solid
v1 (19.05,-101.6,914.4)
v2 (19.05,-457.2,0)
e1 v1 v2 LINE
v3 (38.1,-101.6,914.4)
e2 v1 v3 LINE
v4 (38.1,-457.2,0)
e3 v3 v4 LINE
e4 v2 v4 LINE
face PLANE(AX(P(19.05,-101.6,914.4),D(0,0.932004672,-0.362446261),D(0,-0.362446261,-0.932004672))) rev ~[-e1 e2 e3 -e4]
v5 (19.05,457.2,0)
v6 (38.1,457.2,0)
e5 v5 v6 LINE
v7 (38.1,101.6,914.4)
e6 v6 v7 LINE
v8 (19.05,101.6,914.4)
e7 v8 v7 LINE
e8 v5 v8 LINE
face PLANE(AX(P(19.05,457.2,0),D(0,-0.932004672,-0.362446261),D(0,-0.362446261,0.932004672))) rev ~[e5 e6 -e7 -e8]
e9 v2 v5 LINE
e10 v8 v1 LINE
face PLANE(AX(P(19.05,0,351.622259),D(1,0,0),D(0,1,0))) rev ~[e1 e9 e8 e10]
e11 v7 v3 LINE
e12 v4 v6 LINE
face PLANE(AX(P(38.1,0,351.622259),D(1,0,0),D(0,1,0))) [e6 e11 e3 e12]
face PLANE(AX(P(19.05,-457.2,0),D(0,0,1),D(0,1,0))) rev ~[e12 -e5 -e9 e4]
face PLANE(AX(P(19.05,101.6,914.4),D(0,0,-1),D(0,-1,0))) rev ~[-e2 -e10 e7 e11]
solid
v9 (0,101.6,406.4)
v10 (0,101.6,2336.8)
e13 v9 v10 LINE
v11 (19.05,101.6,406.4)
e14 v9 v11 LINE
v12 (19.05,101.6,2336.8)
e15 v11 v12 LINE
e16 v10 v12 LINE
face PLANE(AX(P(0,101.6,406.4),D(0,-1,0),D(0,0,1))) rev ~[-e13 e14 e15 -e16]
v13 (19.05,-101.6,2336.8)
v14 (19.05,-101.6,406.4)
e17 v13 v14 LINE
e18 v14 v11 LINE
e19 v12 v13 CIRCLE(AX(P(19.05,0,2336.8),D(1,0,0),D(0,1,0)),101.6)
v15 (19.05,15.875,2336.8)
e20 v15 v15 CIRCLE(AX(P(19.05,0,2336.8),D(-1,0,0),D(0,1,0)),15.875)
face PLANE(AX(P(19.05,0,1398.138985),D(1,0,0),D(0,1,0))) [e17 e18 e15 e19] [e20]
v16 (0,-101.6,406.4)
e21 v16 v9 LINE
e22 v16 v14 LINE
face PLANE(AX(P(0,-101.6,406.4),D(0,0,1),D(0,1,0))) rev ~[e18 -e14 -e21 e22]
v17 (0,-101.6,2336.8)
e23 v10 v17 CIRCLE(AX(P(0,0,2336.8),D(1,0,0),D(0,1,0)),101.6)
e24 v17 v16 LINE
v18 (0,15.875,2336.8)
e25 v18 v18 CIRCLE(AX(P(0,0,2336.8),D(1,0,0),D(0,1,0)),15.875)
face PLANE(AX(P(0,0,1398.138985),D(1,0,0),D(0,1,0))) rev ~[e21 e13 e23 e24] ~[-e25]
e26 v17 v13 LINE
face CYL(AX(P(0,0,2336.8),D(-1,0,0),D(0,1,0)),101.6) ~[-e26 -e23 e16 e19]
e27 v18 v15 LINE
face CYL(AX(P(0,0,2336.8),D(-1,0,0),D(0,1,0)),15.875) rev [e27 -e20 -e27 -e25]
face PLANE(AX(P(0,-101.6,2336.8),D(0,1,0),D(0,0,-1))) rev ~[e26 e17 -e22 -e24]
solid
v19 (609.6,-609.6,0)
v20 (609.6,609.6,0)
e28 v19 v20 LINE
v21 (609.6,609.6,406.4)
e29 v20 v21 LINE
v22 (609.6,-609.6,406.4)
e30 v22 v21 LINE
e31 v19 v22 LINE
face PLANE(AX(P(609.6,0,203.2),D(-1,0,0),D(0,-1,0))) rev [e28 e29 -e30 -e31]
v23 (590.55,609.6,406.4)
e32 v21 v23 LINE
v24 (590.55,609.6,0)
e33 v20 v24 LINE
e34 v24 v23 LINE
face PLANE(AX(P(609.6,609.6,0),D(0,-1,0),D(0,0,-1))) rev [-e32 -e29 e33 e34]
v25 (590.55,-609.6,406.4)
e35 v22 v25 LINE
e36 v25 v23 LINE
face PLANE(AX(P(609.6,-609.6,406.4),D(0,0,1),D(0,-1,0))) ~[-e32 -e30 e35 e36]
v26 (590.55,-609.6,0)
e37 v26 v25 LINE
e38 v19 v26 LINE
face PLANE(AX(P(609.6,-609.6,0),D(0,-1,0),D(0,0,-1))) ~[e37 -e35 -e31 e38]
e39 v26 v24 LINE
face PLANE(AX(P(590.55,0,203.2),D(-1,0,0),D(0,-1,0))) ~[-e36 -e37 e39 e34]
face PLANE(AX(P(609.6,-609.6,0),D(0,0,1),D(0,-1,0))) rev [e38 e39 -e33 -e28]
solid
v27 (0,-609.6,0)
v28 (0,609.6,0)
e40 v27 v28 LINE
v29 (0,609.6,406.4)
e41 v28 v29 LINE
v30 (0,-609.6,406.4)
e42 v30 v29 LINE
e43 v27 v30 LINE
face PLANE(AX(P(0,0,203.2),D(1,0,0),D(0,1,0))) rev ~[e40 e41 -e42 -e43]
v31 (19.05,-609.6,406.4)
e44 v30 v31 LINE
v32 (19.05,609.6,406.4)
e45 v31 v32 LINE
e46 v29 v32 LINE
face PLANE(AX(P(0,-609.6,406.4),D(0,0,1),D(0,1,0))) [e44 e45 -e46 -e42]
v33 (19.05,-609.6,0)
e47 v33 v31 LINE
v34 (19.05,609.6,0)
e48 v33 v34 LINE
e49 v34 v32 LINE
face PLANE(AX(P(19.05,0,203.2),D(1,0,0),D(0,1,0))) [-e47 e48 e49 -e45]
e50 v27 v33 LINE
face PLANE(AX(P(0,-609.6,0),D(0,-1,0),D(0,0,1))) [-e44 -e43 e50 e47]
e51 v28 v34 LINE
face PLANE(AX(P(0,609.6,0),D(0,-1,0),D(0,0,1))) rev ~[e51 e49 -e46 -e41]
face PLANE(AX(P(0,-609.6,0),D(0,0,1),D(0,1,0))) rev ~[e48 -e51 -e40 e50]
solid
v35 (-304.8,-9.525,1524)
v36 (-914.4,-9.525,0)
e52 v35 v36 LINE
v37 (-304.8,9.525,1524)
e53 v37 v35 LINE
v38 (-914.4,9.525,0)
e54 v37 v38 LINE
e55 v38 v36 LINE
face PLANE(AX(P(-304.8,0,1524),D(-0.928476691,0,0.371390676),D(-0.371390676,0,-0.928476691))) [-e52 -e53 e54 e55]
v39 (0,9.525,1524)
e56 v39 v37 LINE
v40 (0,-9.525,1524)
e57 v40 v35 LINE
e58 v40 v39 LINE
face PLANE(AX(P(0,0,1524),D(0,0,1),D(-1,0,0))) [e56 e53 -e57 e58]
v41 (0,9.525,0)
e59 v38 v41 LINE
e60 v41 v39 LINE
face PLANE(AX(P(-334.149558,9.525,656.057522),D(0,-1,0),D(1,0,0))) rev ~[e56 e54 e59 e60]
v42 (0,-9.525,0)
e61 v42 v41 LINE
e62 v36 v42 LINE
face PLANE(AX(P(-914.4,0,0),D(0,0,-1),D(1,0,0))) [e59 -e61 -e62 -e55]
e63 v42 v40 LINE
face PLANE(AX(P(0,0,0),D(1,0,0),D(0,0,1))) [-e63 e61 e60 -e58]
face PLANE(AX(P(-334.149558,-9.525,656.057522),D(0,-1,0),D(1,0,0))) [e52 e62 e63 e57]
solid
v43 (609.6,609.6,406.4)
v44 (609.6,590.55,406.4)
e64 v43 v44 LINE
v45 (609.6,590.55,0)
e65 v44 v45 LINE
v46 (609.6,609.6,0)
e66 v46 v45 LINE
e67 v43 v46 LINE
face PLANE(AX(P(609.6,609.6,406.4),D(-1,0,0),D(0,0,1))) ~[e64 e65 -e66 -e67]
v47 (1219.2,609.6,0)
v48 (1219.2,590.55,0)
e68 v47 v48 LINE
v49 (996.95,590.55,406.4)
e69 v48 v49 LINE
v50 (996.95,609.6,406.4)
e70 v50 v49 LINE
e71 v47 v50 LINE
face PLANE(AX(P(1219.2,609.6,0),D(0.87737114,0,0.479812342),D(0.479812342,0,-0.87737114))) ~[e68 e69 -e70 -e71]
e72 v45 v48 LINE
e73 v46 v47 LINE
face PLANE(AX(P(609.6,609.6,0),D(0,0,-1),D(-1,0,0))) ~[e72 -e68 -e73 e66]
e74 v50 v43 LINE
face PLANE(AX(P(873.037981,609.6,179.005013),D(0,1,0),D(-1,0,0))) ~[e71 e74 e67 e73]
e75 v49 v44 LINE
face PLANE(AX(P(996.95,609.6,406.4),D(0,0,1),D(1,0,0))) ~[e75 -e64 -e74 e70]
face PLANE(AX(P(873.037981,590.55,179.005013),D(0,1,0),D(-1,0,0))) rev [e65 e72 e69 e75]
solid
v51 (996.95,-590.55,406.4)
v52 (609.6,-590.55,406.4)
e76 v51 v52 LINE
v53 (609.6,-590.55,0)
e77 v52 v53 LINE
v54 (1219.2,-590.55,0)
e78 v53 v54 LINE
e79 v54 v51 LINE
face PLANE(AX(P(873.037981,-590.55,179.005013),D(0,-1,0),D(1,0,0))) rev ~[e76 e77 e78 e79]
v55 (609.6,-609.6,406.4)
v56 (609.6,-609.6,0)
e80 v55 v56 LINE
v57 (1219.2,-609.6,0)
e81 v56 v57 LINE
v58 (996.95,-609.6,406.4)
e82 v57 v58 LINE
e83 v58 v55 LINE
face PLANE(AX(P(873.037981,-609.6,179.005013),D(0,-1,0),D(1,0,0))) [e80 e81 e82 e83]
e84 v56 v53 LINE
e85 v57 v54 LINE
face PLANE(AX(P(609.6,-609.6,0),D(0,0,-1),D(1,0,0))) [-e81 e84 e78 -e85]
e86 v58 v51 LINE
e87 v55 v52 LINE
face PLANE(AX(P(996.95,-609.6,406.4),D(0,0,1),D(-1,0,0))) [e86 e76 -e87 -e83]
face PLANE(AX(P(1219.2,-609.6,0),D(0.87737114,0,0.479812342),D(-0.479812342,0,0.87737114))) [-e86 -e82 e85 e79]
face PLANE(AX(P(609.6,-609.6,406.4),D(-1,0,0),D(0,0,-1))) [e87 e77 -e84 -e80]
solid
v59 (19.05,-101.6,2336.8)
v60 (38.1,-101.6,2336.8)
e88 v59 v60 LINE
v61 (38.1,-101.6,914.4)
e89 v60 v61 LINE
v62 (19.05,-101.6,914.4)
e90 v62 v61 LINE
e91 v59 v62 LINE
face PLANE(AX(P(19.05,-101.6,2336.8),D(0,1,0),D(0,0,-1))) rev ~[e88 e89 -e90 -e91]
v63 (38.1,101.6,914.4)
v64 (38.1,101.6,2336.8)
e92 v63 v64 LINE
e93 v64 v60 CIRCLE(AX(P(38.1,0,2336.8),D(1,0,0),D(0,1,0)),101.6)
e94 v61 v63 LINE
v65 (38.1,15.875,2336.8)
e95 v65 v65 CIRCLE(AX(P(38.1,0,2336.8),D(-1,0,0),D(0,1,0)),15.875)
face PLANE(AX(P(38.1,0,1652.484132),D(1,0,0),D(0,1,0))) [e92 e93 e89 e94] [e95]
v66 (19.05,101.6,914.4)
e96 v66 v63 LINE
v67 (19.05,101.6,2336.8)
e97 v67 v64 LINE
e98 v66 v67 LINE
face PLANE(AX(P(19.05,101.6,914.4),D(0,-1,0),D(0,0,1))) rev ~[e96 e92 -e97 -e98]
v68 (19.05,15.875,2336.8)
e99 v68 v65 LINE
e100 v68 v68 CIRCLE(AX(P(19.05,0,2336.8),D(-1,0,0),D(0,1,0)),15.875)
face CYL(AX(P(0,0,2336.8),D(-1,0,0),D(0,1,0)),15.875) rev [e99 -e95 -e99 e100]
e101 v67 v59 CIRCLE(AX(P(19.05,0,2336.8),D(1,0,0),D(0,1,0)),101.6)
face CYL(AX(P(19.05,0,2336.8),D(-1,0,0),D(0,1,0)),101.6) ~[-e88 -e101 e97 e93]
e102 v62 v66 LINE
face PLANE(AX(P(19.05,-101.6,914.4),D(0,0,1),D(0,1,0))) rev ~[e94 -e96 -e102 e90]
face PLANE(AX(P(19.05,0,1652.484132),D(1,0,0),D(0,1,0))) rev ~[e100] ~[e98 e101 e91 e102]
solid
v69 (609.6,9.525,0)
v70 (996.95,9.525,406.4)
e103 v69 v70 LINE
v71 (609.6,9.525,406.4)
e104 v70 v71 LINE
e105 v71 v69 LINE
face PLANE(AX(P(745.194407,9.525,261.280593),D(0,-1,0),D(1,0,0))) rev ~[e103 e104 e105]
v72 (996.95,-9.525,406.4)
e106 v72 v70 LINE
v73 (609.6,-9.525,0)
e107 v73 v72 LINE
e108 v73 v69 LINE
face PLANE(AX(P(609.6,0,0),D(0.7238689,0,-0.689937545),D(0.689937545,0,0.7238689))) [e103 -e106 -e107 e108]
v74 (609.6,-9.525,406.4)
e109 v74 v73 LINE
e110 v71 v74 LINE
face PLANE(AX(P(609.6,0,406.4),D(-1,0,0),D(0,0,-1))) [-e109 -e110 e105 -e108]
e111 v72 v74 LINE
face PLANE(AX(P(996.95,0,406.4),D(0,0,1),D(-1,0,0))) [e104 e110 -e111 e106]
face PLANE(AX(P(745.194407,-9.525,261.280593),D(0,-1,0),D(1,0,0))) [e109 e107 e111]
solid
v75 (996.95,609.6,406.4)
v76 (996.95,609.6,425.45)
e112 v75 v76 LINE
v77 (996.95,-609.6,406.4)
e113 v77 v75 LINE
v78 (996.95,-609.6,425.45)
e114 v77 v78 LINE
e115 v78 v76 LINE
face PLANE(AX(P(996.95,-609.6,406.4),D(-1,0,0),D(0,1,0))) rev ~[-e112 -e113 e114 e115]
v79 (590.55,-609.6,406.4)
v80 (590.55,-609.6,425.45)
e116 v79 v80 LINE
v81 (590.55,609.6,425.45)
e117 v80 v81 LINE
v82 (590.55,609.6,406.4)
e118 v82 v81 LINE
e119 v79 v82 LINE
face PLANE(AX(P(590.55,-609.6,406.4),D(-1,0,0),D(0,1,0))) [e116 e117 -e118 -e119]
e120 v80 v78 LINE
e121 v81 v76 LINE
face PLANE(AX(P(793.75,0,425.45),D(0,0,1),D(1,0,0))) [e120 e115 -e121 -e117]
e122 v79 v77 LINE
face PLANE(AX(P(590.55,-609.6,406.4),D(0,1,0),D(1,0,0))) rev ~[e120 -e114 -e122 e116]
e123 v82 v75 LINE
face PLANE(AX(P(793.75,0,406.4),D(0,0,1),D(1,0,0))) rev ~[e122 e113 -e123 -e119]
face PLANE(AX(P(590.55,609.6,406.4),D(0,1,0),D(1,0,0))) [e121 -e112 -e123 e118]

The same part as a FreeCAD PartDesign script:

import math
import FreeCAD as App
import Part
import Sketcher
Q = App.Units.Quantity

doc = App.newDocument("Part")
body = doc.addObject("PartDesign::Body", "Body")

# Sketch on YZ plane
sketch1 = body.newObject("Sketcher::SketchObject", "Sketch")
sketch1.AttachmentSupport = (doc.getObject("YZ_Plane"), [""])
sketch1.MapMode = "FlatFace"
sketch1.addGeometry([
    Part.LineSegment(App.Vector(101.6, 406.4, 0), App.Vector(101.6, 2336.8, 0)),
    Part.ArcOfCircle(Part.Circle(App.Vector(0, 2336.8, 0), App.Vector(0, 0, 1), 101.6), math.radians(0), math.radians(180)),
    Part.LineSegment(App.Vector(-101.6, 2336.8, 0), App.Vector(-101.6, 406.4, 0)),
    Part.LineSegment(App.Vector(-101.6, 406.4, 0), App.Vector(101.6, 406.4, 0)),
], False)
sketch1.addConstraint([
    Sketcher.Constraint("Tangent", 0, 2, 1, 1),
    Sketcher.Constraint("Tangent", 1, 2, 2, 1),
    Sketcher.Constraint("Coincident", 2, 2, 3, 1),
    Sketcher.Constraint("Coincident", 3, 2, 0, 1),
    Sketcher.Constraint("Vertical", 0),
    Sketcher.Constraint("Vertical", 2),
    Sketcher.Constraint("Horizontal", 3),
    Sketcher.Constraint("PointOnObject", 1, 3, -2),
    Sketcher.Constraint("Radius", 1, Q("4 in")),
    Sketcher.Constraint("DistanceY", 0, 1, 0, 2, Q("76 in")),
    Sketcher.Constraint("DistanceY", -1, 1, 1, 3, Q("92 in")),
])
pad1 = body.newObject("PartDesign::Pad", "Pad")
pad1.Profile = sketch1
pad1.Length = Q("0.75 in")
body2 = doc.addObject("PartDesign::Body", "Body001")

# Sketch on YZ plane
sketch2 = body2.newObject("Sketcher::SketchObject", "Sketch001")
sketch2.AttachmentSupport = (doc.getObject("YZ_Plane001"), [""])
sketch2.MapMode = "FlatFace"
sketch2.addGeometry([
    Part.LineSegment(App.Vector(-609.6, 406.4, 0), App.Vector(-609.6, 0, 0)),
    Part.LineSegment(App.Vector(-609.6, 0, 0), App.Vector(609.6, 0, 0)),
    Part.LineSegment(App.Vector(609.6, 0, 0), App.Vector(609.6, 406.4, 0)),
    Part.LineSegment(App.Vector(609.6, 406.4, 0), App.Vector(-609.6, 406.4, 0)),
], False)
sketch2.addConstraint([
    Sketcher.Constraint("Coincident", 0, 2, 1, 1),
    Sketcher.Constraint("Coincident", 1, 2, 2, 1),
    Sketcher.Constraint("Coincident", 2, 2, 3, 1),
    Sketcher.Constraint("Coincident", 3, 2, 0, 1),
    Sketcher.Constraint("Vertical", 0),
    Sketcher.Constraint("Horizontal", 1),
    Sketcher.Constraint("Vertical", 2),
    Sketcher.Constraint("Horizontal", 3),
    Sketcher.Constraint("Symmetric", 0, 2, 1, 2, -1, 1),
    Sketcher.Constraint("DistanceX", 1, 1, 1, 2, Q("48 in")),
    Sketcher.Constraint("DistanceY", 0, 2, 0, 1, Q("16 in")),
])
pad2 = body2.newObject("PartDesign::Pad", "Pad001")
pad2.Profile = sketch2
pad2.Length = Q("0.75 in")
body3 = doc.addObject("PartDesign::Body", "Body002")
doc.recompute()

mirroring = doc.addObject("Part::Mirroring", "Mirroring")
mirroring.Source = body2
mirroring.Base = App.Vector(304.8, 0, 0)
mirroring.Normal = App.Vector(1, 0, 0)
body3.BaseFeature = mirroring
doc.recompute()
body4 = doc.addObject("PartDesign::Body", "Body003")

# Sketch on YZ plane
sketch3 = body4.newObject("Sketcher::SketchObject", "Sketch002")
sketch3.AttachmentSupport = (doc.getObject("YZ_Plane003"), [""])
sketch3.MapMode = "FlatFace"
sketch3.AttachmentOffset = App.Placement(App.Vector(0, 0, 0.75 * 25.4), App.Rotation())
sketch3.addGeometry([
    Part.LineSegment(App.Vector(101.6, 914.4, 0), App.Vector(-101.6, 914.4, 0)),
    Part.LineSegment(App.Vector(-101.6, 914.4, 0), App.Vector(-457.2, 0, 0)),
    Part.LineSegment(App.Vector(-457.2, 0, 0), App.Vector(457.2, 0, 0)),
    Part.LineSegment(App.Vector(457.2, 0, 0), App.Vector(101.6, 914.4, 0)),
], False)
sketch3.addConstraint([
    Sketcher.Constraint("Coincident", 0, 2, 1, 1),
    Sketcher.Constraint("Coincident", 1, 2, 2, 1),
    Sketcher.Constraint("Coincident", 2, 2, 3, 1),
    Sketcher.Constraint("Coincident", 3, 2, 0, 1),
    Sketcher.Constraint("Horizontal", 0),
    Sketcher.Constraint("Horizontal", 2),
    Sketcher.Constraint("Symmetric", 1, 2, 2, 2, -1, 1),
    Sketcher.Constraint("Equal", 1, 3),
    Sketcher.Constraint("DistanceX", 0, 2, 0, 1, Q("8 in")),
    Sketcher.Constraint("DistanceX", 2, 1, 2, 2, Q("36 in")),
    Sketcher.Constraint("DistanceY", -1, 1, 0, 2, Q("36 in")),
])
pad3 = body4.newObject("PartDesign::Pad", "Pad002")
pad3.Profile = sketch3
pad3.Length = Q("0.75 in")
body5 = doc.addObject("PartDesign::Body", "Body004")

# Sketch on XY plane
sketch4 = body5.newObject("Sketcher::SketchObject", "Sketch003")
sketch4.AttachmentSupport = (doc.getObject("XY_Plane004"), [""])
sketch4.MapMode = "FlatFace"
sketch4.AttachmentOffset = App.Placement(App.Vector(0, 0, 16 * 25.4), App.Rotation())
sketch4.addGeometry([
    Part.LineSegment(App.Vector(590.55, 609.6, 0), App.Vector(590.55, -609.6, 0)),
    Part.LineSegment(App.Vector(590.55, -609.6, 0), App.Vector(996.95, -609.6, 0)),
    Part.LineSegment(App.Vector(996.95, -609.6, 0), App.Vector(996.95, 609.6, 0)),
    Part.LineSegment(App.Vector(996.95, 609.6, 0), App.Vector(590.55, 609.6, 0)),
], False)
sketch4.addConstraint([
    Sketcher.Constraint("Coincident", 0, 2, 1, 1),
    Sketcher.Constraint("Coincident", 1, 2, 2, 1),
    Sketcher.Constraint("Coincident", 2, 2, 3, 1),
    Sketcher.Constraint("Coincident", 3, 2, 0, 1),
    Sketcher.Constraint("Vertical", 0),
    Sketcher.Constraint("Horizontal", 1),
    Sketcher.Constraint("Vertical", 2),
    Sketcher.Constraint("Horizontal", 3),
    Sketcher.Constraint("DistanceX", 1, 1, 1, 2, Q("16 in")),
    Sketcher.Constraint("DistanceY", 0, 2, 0, 1, Q("48 in")),
    Sketcher.Constraint("DistanceY", 0, 2, -1, 1, Q("24 in")),
    Sketcher.Constraint("DistanceX", -1, 1, 0, 2, Q("23.25 in")),
])
pad4 = body5.newObject("PartDesign::Pad", "Pad003")
pad4.Profile = sketch4
pad4.Length = Q("0.75 in")
body6 = doc.addObject("PartDesign::Body", "Body005")

# Sketch on XZ plane
sketch5 = body6.newObject("Sketcher::SketchObject", "Sketch004")
sketch5.AttachmentSupport = (doc.getObject("XZ_Plane005"), [""])
sketch5.MapMode = "FlatFace"
sketch5.AttachmentOffset = App.Placement(App.Vector(0, 0, 24 * 25.4), App.Rotation())
sketch5.addGeometry([
    Part.LineSegment(App.Vector(996.95, 406.4, 0), App.Vector(609.6, 406.4, 0)),
    Part.LineSegment(App.Vector(609.6, 406.4, 0), App.Vector(609.6, 0, 0)),
    Part.LineSegment(App.Vector(609.6, 0, 0), App.Vector(1219.2, 0, 0)),
    Part.LineSegment(App.Vector(1219.2, 0, 0), App.Vector(996.95, 406.4, 0)),
], False)
sketch5.addConstraint([
    Sketcher.Constraint("Coincident", 0, 2, 1, 1),
    Sketcher.Constraint("Coincident", 1, 2, 2, 1),
    Sketcher.Constraint("Coincident", 2, 2, 3, 1),
    Sketcher.Constraint("Coincident", 3, 2, 0, 1),
    Sketcher.Constraint("Horizontal", 0),
    Sketcher.Constraint("Vertical", 1),
    Sketcher.Constraint("Horizontal", 2),
    Sketcher.Constraint("PointOnObject", 1, 2, -1),
    Sketcher.Constraint("DistanceX", 2, 1, 2, 2, Q("24 in")),
    Sketcher.Constraint("DistanceY", 1, 2, 1, 1, Q("16 in")),
    Sketcher.Constraint("DistanceX", -1, 1, 0, 2, Q("24 in")),
    Sketcher.Constraint("DistanceX", 0, 2, 0, 1, Q("15.25 in")),
])
pad5 = body6.newObject("PartDesign::Pad", "Pad004")
pad5.Profile = sketch5
pad5.Length = Q("0.75 in")
pad5.Reversed = True
body7 = doc.addObject("PartDesign::Body", "Body006")
doc.recompute()

mirroring2 = doc.addObject("Part::Mirroring", "Mirroring001")
mirroring2.Source = body6
mirroring2.Base = App.Vector(0, 0, 0)
mirroring2.Normal = App.Vector(0, -1, 0)
body7.BaseFeature = mirroring2
doc.recompute()
body8 = doc.addObject("PartDesign::Body", "Body007")

# Sketch on XZ plane
sketch6 = body8.newObject("Sketcher::SketchObject", "Sketch005")
sketch6.AttachmentSupport = (doc.getObject("XZ_Plane007"), [""])
sketch6.MapMode = "FlatFace"
sketch6.addGeometry([
    Part.LineSegment(App.Vector(996.95, 406.4, 0), App.Vector(609.6, 406.4, 0)),
    Part.LineSegment(App.Vector(609.6, 406.4, 0), App.Vector(609.6, 0, 0)),
    Part.LineSegment(App.Vector(609.6, 0, 0), App.Vector(996.95, 406.4, 0)),
], False)
sketch6.addConstraint([
    Sketcher.Constraint("Coincident", 0, 2, 1, 1),
    Sketcher.Constraint("Coincident", 1, 2, 2, 1),
    Sketcher.Constraint("Coincident", 2, 2, 0, 1),
    Sketcher.Constraint("Horizontal", 0),
    Sketcher.Constraint("Vertical", 1),
    Sketcher.Constraint("PointOnObject", 1, 2, -1),
    Sketcher.Constraint("DistanceY", 1, 2, 1, 1, Q("16 in")),
    Sketcher.Constraint("DistanceX", -1, 1, 0, 2, Q("24 in")),
    Sketcher.Constraint("DistanceX", 0, 2, 0, 1, Q("15.25 in")),
])
pad6 = body8.newObject("PartDesign::Pad", "Pad005")
pad6.Profile = sketch6
pad6.Length = Q("0.75 in")
pad6.Midplane = True
body9 = doc.addObject("PartDesign::Body", "Body008")

# Sketch on XZ plane
sketch7 = body9.newObject("Sketcher::SketchObject", "Sketch006")
sketch7.AttachmentSupport = (doc.getObject("XZ_Plane008"), [""])
sketch7.MapMode = "FlatFace"
sketch7.addGeometry([
    Part.LineSegment(App.Vector(0, 1524, 0), App.Vector(-304.8, 1524, 0)),
    Part.LineSegment(App.Vector(-304.8, 1524, 0), App.Vector(-914.4, 0, 0)),
    Part.LineSegment(App.Vector(-914.4, 0, 0), App.Vector(0, 0, 0)),
    Part.LineSegment(App.Vector(0, 0, 0), App.Vector(0, 1524, 0)),
], False)
sketch7.addConstraint([
    Sketcher.Constraint("Coincident", 0, 2, 1, 1),
    Sketcher.Constraint("Coincident", 1, 2, 2, 1),
    Sketcher.Constraint("Coincident", 2, 2, 3, 1),
    Sketcher.Constraint("Coincident", 3, 2, 0, 1),
    Sketcher.Constraint("Horizontal", 0),
    Sketcher.Constraint("Horizontal", 2),
    Sketcher.Constraint("Vertical", 3),
    Sketcher.Constraint("Coincident", 2, 2, -1, 1),
    Sketcher.Constraint("DistanceX", 0, 2, 0, 1, Q("12 in")),
    Sketcher.Constraint("DistanceX", 2, 1, 2, 2, Q("36 in")),
    Sketcher.Constraint("DistanceY", 3, 1, 3, 2, Q("60 in")),
])
pad7 = body9.newObject("PartDesign::Pad", "Pad006")
pad7.Profile = sketch7
pad7.Length = Q("0.75 in")
pad7.Midplane = True
body10 = doc.addObject("PartDesign::Body", "Body009")

# Sketch on YZ plane
sketch8 = body10.newObject("Sketcher::SketchObject", "Sketch007")
sketch8.AttachmentSupport = (doc.getObject("YZ_Plane009"), [""])
sketch8.MapMode = "FlatFace"
sketch8.AttachmentOffset = App.Placement(App.Vector(0, 0, 0.75 * 25.4), App.Rotation())
sketch8.addGeometry([
    Part.LineSegment(App.Vector(101.6, 914.4, 0), App.Vector(101.6, 2336.8, 0)),
    Part.ArcOfCircle(Part.Circle(App.Vector(0, 2336.8, 0), App.Vector(0, 0, 1), 101.6), math.radians(0), math.radians(180)),
    Part.LineSegment(App.Vector(-101.6, 2336.8, 0), App.Vector(-101.6, 914.4, 0)),
    Part.LineSegment(App.Vector(-101.6, 914.4, 0), App.Vector(101.6, 914.4, 0)),
], False)
sketch8.addConstraint([
    Sketcher.Constraint("Tangent", 0, 2, 1, 1),
    Sketcher.Constraint("Tangent", 1, 2, 2, 1),
    Sketcher.Constraint("Coincident", 2, 2, 3, 1),
    Sketcher.Constraint("Coincident", 3, 2, 0, 1),
    Sketcher.Constraint("Vertical", 0),
    Sketcher.Constraint("Vertical", 2),
    Sketcher.Constraint("Horizontal", 3),
    Sketcher.Constraint("PointOnObject", 1, 3, -2),
    Sketcher.Constraint("Radius", 1, Q("4 in")),
    Sketcher.Constraint("DistanceY", 0, 1, 0, 2, Q("56 in")),
    Sketcher.Constraint("DistanceY", -1, 1, 1, 3, Q("92 in")),
])
pad8 = body10.newObject("PartDesign::Pad", "Pad007")
pad8.Profile = sketch8
pad8.Length = Q("0.75 in")
body11 = doc.addObject("PartDesign::Body", "Body010")

# Sketch on YZ plane
sketch9 = body11.newObject("Sketcher::SketchObject", "Sketch008")
sketch9.AttachmentSupport = (doc.getObject("YZ_Plane010"), [""])
sketch9.MapMode = "FlatFace"
sketch9.addGeometry(Part.Circle(App.Vector(0, 2336.8, 0), App.Vector(0, 0, 1), 15.875), False)
sketch9.addConstraint([
    Sketcher.Constraint("PointOnObject", 0, 3, -2),
    Sketcher.Constraint("Diameter", 0, Q("1.25 in")),
    Sketcher.Constraint("DistanceY", -1, 1, 0, 3, Q("92 in")),
])
pad9 = body11.newObject("PartDesign::Pad", "Pad008")
pad9.Profile = sketch9
pad9.Length = 1219.201
doc.recompute()

body12 = doc.addObject("PartDesign::Body", "Body011")
body12.BaseFeature = body11
boolean = body.newObject("PartDesign::Boolean", "Boolean")
boolean.Type = "Cut"
boolean.addObjects([body12])
doc.recompute()

boolean2 = body10.newObject("PartDesign::Boolean", "Boolean001")
boolean2.Type = "Cut"
boolean2.addObjects([body11])
mirroring.Visibility = False
mirroring2.Visibility = False

doc.recompute()
